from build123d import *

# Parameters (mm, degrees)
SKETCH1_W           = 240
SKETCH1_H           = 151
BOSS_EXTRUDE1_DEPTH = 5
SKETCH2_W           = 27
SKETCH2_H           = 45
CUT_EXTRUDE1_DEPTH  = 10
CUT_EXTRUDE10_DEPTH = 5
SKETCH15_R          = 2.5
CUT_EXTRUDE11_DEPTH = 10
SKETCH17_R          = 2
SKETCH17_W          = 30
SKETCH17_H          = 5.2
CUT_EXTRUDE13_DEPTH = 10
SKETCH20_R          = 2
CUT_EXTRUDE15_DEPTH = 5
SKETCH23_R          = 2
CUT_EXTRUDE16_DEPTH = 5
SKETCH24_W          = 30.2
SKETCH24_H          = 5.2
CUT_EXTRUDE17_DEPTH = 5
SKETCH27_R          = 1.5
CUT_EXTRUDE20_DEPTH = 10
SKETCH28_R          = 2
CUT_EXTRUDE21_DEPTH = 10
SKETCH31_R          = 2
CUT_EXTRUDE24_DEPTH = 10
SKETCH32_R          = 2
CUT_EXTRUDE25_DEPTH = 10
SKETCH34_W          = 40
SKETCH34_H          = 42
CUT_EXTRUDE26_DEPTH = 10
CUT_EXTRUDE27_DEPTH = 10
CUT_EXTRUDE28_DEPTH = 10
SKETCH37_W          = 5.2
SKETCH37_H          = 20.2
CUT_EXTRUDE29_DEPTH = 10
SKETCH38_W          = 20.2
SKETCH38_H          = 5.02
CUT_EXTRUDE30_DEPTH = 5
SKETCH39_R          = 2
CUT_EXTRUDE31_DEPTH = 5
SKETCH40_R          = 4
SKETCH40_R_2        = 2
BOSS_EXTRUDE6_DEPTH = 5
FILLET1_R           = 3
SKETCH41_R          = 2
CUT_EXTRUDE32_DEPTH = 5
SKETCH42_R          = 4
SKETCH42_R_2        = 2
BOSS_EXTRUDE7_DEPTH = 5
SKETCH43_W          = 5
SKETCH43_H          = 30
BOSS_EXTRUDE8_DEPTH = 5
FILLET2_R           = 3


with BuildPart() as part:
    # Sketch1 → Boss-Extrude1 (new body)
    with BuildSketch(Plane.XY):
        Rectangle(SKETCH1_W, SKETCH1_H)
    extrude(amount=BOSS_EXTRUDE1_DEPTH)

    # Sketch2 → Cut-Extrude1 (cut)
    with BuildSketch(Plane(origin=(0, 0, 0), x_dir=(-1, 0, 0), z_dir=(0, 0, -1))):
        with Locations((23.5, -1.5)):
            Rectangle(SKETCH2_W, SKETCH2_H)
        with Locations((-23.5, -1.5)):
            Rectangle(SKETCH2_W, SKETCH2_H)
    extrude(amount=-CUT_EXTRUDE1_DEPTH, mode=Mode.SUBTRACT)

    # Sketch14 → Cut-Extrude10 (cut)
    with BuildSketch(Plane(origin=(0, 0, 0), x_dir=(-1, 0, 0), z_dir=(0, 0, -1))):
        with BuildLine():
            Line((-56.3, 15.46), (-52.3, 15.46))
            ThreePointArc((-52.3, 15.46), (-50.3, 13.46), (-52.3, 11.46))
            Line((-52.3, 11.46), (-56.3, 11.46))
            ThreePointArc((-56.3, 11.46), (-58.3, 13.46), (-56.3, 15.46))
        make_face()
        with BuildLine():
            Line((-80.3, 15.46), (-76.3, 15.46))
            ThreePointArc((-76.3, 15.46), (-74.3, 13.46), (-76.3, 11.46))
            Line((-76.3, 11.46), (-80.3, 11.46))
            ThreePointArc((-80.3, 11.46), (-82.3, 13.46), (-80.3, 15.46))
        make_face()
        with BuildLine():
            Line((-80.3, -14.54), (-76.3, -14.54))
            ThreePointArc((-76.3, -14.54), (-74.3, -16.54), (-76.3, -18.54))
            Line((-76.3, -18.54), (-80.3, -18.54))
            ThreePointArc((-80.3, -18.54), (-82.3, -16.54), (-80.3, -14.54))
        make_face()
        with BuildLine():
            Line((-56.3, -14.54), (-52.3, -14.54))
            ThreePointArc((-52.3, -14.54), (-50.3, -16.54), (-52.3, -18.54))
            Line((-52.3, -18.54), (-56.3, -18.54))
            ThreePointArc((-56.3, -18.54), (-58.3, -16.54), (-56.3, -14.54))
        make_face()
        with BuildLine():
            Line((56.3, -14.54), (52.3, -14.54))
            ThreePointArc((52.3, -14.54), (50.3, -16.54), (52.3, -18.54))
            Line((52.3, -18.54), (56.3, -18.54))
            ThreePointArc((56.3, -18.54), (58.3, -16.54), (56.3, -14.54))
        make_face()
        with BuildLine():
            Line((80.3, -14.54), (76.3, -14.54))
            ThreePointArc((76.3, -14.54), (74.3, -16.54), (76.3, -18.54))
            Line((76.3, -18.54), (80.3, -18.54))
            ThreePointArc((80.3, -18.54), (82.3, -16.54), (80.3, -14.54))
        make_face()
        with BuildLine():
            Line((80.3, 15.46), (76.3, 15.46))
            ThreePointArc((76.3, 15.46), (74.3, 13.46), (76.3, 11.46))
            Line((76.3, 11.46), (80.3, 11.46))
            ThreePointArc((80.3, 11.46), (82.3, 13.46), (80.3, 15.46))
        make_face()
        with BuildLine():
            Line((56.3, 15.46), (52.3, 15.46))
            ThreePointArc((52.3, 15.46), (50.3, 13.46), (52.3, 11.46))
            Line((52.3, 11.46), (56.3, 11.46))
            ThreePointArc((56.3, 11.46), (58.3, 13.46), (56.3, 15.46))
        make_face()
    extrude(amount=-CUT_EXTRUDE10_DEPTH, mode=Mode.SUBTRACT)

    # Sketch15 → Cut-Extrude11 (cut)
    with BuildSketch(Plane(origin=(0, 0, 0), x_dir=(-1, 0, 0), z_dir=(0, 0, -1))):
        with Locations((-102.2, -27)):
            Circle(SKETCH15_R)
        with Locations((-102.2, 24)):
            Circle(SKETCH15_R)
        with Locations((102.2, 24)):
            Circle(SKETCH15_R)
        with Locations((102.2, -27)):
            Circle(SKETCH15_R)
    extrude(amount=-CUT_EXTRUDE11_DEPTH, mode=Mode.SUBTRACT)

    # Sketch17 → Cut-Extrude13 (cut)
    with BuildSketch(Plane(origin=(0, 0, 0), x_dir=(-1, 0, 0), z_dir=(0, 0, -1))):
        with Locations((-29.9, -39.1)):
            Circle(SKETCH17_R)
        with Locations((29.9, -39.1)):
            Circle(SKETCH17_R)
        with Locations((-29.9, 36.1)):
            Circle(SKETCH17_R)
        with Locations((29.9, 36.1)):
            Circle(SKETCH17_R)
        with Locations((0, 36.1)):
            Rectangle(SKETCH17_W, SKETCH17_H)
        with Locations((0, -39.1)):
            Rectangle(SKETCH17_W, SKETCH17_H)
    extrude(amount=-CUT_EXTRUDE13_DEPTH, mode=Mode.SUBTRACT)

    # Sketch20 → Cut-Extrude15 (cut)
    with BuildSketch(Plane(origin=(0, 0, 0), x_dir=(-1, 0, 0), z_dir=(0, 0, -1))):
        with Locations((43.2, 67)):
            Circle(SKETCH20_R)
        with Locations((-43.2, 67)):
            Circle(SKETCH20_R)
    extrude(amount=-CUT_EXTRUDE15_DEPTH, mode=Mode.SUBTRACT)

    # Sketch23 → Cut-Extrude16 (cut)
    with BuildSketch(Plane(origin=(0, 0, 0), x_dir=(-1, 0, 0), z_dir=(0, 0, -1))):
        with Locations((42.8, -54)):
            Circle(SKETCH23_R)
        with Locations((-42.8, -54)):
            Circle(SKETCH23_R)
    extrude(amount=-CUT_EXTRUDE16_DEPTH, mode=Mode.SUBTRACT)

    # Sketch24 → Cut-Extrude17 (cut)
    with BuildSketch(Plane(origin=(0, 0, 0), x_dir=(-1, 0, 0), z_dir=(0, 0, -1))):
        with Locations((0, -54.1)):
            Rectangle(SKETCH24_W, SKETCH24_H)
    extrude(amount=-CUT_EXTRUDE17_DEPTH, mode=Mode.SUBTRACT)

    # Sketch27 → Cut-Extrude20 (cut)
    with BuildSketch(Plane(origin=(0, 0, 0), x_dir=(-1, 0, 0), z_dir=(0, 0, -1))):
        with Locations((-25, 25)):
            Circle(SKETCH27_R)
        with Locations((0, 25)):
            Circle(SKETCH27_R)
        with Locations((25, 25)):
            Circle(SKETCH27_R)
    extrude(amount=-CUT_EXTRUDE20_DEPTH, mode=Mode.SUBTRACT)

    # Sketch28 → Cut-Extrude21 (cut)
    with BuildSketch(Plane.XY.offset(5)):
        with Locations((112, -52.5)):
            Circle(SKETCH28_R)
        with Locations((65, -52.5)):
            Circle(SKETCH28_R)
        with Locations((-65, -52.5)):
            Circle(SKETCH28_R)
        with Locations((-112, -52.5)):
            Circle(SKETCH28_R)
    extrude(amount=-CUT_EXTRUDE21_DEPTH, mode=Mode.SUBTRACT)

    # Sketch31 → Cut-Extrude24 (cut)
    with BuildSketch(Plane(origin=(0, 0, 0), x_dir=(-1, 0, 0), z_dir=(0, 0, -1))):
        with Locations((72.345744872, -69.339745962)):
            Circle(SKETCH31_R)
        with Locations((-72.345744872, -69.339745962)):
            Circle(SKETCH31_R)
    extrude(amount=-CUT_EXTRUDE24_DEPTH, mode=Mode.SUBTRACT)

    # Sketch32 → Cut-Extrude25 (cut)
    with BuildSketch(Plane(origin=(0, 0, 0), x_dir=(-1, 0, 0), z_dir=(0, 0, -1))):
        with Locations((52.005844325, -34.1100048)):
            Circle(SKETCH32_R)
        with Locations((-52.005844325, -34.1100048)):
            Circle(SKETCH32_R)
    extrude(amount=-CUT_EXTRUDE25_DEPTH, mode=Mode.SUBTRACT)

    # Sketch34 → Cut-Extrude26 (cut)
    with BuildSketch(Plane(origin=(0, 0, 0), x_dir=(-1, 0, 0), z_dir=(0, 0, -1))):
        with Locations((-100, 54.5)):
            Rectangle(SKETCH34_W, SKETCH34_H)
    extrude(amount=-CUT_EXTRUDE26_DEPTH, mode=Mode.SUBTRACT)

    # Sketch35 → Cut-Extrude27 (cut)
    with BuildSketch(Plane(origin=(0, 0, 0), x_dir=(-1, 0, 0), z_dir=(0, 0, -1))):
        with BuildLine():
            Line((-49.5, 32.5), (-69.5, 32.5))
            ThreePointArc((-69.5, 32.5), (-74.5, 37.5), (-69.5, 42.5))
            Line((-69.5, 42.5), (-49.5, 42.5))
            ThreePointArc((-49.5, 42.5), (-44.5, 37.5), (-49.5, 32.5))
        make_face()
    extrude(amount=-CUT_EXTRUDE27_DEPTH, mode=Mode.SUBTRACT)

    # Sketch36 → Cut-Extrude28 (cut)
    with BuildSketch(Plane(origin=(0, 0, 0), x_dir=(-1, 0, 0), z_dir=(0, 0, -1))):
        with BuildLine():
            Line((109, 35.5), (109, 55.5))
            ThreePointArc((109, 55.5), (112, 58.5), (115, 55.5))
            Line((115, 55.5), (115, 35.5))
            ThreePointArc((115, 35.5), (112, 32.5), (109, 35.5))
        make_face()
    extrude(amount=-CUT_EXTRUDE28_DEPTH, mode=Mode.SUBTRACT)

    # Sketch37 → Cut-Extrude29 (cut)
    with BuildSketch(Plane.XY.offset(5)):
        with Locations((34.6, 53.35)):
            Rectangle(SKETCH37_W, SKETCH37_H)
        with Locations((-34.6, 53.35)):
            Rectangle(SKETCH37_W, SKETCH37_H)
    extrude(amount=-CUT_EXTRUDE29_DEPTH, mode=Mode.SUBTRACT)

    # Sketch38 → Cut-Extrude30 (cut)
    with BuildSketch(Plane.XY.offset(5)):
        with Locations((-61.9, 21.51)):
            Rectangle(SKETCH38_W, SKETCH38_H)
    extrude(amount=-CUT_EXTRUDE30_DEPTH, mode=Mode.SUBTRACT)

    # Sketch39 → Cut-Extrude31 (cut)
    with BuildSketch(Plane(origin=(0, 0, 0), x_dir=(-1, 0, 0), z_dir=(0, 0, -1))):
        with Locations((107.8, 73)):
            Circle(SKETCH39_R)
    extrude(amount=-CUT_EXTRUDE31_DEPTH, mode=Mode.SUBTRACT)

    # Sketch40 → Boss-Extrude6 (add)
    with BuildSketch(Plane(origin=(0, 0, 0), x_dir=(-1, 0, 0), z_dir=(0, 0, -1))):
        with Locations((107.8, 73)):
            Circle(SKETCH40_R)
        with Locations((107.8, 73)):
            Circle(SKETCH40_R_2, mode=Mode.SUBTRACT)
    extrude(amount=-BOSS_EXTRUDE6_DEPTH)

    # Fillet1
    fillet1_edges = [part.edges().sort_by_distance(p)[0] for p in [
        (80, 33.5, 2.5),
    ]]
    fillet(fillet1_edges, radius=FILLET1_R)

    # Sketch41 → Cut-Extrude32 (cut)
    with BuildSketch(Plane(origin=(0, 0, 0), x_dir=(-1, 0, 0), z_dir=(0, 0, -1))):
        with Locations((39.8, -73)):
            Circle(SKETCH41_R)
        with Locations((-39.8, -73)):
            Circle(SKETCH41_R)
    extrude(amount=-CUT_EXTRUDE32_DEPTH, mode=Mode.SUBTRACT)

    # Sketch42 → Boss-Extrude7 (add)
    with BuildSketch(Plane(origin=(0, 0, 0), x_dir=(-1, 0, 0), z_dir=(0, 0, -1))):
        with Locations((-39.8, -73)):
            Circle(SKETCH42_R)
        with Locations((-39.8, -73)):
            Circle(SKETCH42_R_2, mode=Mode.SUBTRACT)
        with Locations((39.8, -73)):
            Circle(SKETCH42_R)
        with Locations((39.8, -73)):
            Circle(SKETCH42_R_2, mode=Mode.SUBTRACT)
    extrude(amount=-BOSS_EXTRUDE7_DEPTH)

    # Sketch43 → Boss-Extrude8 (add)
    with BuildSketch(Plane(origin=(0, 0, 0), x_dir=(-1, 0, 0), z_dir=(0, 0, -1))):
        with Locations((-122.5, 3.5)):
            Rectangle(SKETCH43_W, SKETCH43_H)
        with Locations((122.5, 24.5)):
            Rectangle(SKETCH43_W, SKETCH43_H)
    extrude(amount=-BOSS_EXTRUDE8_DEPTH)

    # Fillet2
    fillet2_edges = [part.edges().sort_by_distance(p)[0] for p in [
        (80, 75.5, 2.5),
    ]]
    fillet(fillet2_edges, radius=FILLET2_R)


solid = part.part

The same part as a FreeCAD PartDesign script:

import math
import FreeCAD as App
import Part
import Sketcher

V = App.Vector


def edges_at(feature, points):
    """Names of the edges that pass closest to the given points."""
    edges = feature.Shape.Edges
    near = lambda p: min(range(len(edges)), key=lambda i: edges[i].distToShape(Part.Vertex(*p))[0])
    return sorted({f"Edge{near(p) + 1}" for p in points})

doc = App.newDocument("Part")
body = doc.addObject("PartDesign::Body", "Body")

# Sketch on XY plane
sketch1 = body.newObject("Sketcher::SketchObject", "Sketch")
sketch1.AttachmentSupport = (doc.getObject("XY_Plane"), [""])
sketch1.MapMode = "FlatFace"
sketch1.addGeometry([
    Part.LineSegment(V(-120, 75.5, 0), V(-120, -75.5, 0)),
    Part.LineSegment(V(-120, -75.5, 0), V(120, -75.5, 0)),
    Part.LineSegment(V(120, -75.5, 0), V(120, 75.5, 0)),
    Part.LineSegment(V(120, 75.5, 0), V(-120, 75.5, 0)),
], False)
sketch1.addConstraint([
    Sketcher.Constraint("Coincident", 0, 2, 1, 1),
    Sketcher.Constraint("Coincident", 1, 2, 2, 1),
    Sketcher.Constraint("Coincident", 2, 2, 3, 1),
    Sketcher.Constraint("Coincident", 3, 2, 0, 1),
    Sketcher.Constraint("Vertical", 0),
    Sketcher.Constraint("Horizontal", 1),
    Sketcher.Constraint("Vertical", 2),
    Sketcher.Constraint("Horizontal", 3),
    Sketcher.Constraint("Symmetric", 0, 2, 2, 2, -1, 1),
    Sketcher.Constraint("DistanceX", 1, 1, 1, 2, 240.0),
    Sketcher.Constraint("DistanceY", 0, 2, 0, 1, 151.0),
])
pad1 = body.newObject("PartDesign::Pad", "Pad")
pad1.Profile = sketch1
pad1.Length = 5

# Sketch on XY plane
sketch2 = body.newObject("Sketcher::SketchObject", "Sketch001")
sketch2.AttachmentSupport = (doc.getObject("XY_Plane"), [""])
sketch2.MapMode = "FlatFace"
sketch2.addGeometry([
    Part.LineSegment(V(-10, 21, 0), V(-10, -24, 0)),  # 0
    Part.LineSegment(V(-10, -24, 0), V(-37, -24, 0)),  # 1
    Part.LineSegment(V(-37, -24, 0), V(-37, 21, 0)),  # 2
    Part.LineSegment(V(-37, 21, 0), V(-10, 21, 0)),  # 3
    Part.LineSegment(V(37, 21, 0), V(37, -24, 0)),  # 4
    Part.LineSegment(V(37, -24, 0), V(10, -24, 0)),  # 5
    Part.LineSegment(V(10, -24, 0), V(10, 21, 0)),  # 6
    Part.LineSegment(V(10, 21, 0), V(37, 21, 0)),  # 7
], False)
sketch2.addConstraint([
    Sketcher.Constraint("Coincident", 0, 2, 1, 1),
    Sketcher.Constraint("Coincident", 1, 2, 2, 1),
    Sketcher.Constraint("Coincident", 2, 2, 3, 1),
    Sketcher.Constraint("Coincident", 3, 2, 0, 1),
    Sketcher.Constraint("Coincident", 4, 2, 5, 1),
    Sketcher.Constraint("Coincident", 5, 2, 6, 1),
    Sketcher.Constraint("Coincident", 6, 2, 7, 1),
    Sketcher.Constraint("Coincident", 7, 2, 4, 1),
    Sketcher.Constraint("Vertical", 0),
    Sketcher.Constraint("Horizontal", 1),
    Sketcher.Constraint("Vertical", 2),
    Sketcher.Constraint("Horizontal", 3),
    Sketcher.Constraint("Vertical", 4),
    Sketcher.Constraint("Horizontal", 5),
    Sketcher.Constraint("Vertical", 6),
    Sketcher.Constraint("Horizontal", 7),
    Sketcher.Constraint("Symmetric", 1, 2, 4, 2, -2),
    Sketcher.Constraint("Symmetric", 3, 2, 6, 2, -2),
    Sketcher.Constraint("DistanceX", 1, 2, 1, 1, 27.0),
    Sketcher.Constraint("DistanceY", 0, 2, 0, 1, 45.0),
    Sketcher.Constraint("DistanceX", 0, 2, -1, 1, 10.0),
    Sketcher.Constraint("DistanceY", 0, 2, -1, 1, 24.0),
])
pocket1 = body.newObject("PartDesign::Pocket", "Pocket")
pocket1.Profile = sketch2
pocket1.Length = 10
pocket1.Reversed = True

# Sketch on XY plane
sketch3 = body.newObject("Sketcher::SketchObject", "Sketch002")
sketch3.AttachmentSupport = (doc.getObject("XY_Plane"), [""])
sketch3.MapMode = "FlatFace"
sketch3.addGeometry([
    Part.LineSegment(V(52.3, 15.46, 0), V(56.3, 15.46, 0)),  # 0
    Part.ArcOfCircle(Part.Circle(V(56.3, 13.46, 0), V(0, 0, 1), 2), math.radians(-90), math.radians(90)),  # 1
    Part.LineSegment(V(56.3, 11.46, 0), V(52.3, 11.46, 0)),  # 2
    Part.ArcOfCircle(Part.Circle(V(52.3, 13.46, 0), V(0, 0, 1), 2), math.radians(90), math.radians(270)),  # 3
    Part.LineSegment(V(76.3, 15.46, 0), V(80.3, 15.46, 0)),  # 4
    Part.ArcOfCircle(Part.Circle(V(80.3, 13.46, 0), V(0, 0, 1), 2), math.radians(-90), math.radians(90)),  # 5
    Part.LineSegment(V(80.3, 11.46, 0), V(76.3, 11.46, 0)),  # 6
    Part.ArcOfCircle(Part.Circle(V(76.3, 13.46, 0), V(0, 0, 1), 2), math.radians(90), math.radians(270)),  # 7
    Part.LineSegment(V(76.3, -14.54, 0), V(80.3, -14.54, 0)),  # 8
    Part.ArcOfCircle(Part.Circle(V(80.3, -16.54, 0), V(0, 0, 1), 2), math.radians(-90), math.radians(90)),  # 9
    Part.LineSegment(V(80.3, -18.54, 0), V(76.3, -18.54, 0)),  # 10
    Part.ArcOfCircle(Part.Circle(V(76.3, -16.54, 0), V(0, 0, 1), 2), math.radians(90), math.radians(270)),  # 11
    Part.LineSegment(V(52.3, -14.54, 0), V(56.3, -14.54, 0)),  # 12
    Part.ArcOfCircle(Part.Circle(V(56.3, -16.54, 0), V(0, 0, 1), 2), math.radians(-90), math.radians(90)),  # 13
    Part.LineSegment(V(56.3, -18.54, 0), V(52.3, -18.54, 0)),  # 14
    Part.ArcOfCircle(Part.Circle(V(52.3, -16.54, 0), V(0, 0, 1), 2), math.radians(90), math.radians(270)),  # 15
    Part.LineSegment(V(-56.3, -14.54, 0), V(-52.3, -14.54, 0)),  # 16
    Part.ArcOfCircle(Part.Circle(V(-52.3, -16.54, 0), V(0, 0, 1), 2), math.radians(-90), math.radians(90)),  # 17
    Part.LineSegment(V(-52.3, -18.54, 0), V(-56.3, -18.54, 0)),  # 18
    Part.ArcOfCircle(Part.Circle(V(-56.3, -16.54, 0), V(0, 0, 1), 2), math.radians(90), math.radians(270)),  # 19
    Part.LineSegment(V(-80.3, -14.54, 0), V(-76.3, -14.54, 0)),  # 20
    Part.ArcOfCircle(Part.Circle(V(-76.3, -16.54, 0), V(0, 0, 1), 2), math.radians(-90), math.radians(90)),  # 21
    Part.LineSegment(V(-76.3, -18.54, 0), V(-80.3, -18.54, 0)),  # 22
    Part.ArcOfCircle(Part.Circle(V(-80.3, -16.54, 0), V(0, 0, 1), 2), math.radians(90), math.radians(270)),  # 23
    Part.LineSegment(V(-80.3, 15.46, 0), V(-76.3, 15.46, 0)),  # 24
    Part.ArcOfCircle(Part.Circle(V(-76.3, 13.46, 0), V(0, 0, 1), 2), math.radians(-90), math.radians(90)),  # 25
    Part.LineSegment(V(-76.3, 11.46, 0), V(-80.3, 11.46, 0)),  # 26
    Part.ArcOfCircle(Part.Circle(V(-80.3, 13.46, 0), V(0, 0, 1), 2), math.radians(90), math.radians(270)),  # 27
    Part.LineSegment(V(-56.3, 15.46, 0), V(-52.3, 15.46, 0)),  # 28
    Part.ArcOfCircle(Part.Circle(V(-52.3, 13.46, 0), V(0, 0, 1), 2), math.radians(-90), math.radians(90)),  # 29
    Part.LineSegment(V(-52.3, 11.46, 0), V(-56.3, 11.46, 0)),  # 30
    Part.ArcOfCircle(Part.Circle(V(-56.3, 13.46, 0), V(0, 0, 1), 2), math.radians(90), math.radians(270)),  # 31
], False)
sketch3.addConstraint([
    Sketcher.Constraint("Tangent", 0, 2, 1, 2),
    Sketcher.Constraint("Tangent", 1, 1, 2, 1),
    Sketcher.Constraint("Tangent", 2, 2, 3, 2),
    Sketcher.Constraint("Tangent", 3, 1, 0, 1),
    Sketcher.Constraint("Tangent", 4, 2, 5, 2),
    Sketcher.Constraint("Tangent", 5, 1, 6, 1),
    Sketcher.Constraint("Tangent", 6, 2, 7, 2),
    Sketcher.Constraint("Tangent", 7, 1, 4, 1),
    Sketcher.Constraint("Tangent", 8, 2, 9, 2),
    Sketcher.Constraint("Tangent", 9, 1, 10, 1),
    Sketcher.Constraint("Tangent", 10, 2, 11, 2),
    Sketcher.Constraint("Tangent", 11, 1, 8, 1),
    Sketcher.Constraint("Tangent", 12, 2, 13, 2),
    Sketcher.Constraint("Tangent", 13, 1, 14, 1),
    Sketcher.Constraint("Tangent", 14, 2, 15, 2),
    Sketcher.Constraint("Tangent", 15, 1, 12, 1),
    Sketcher.Constraint("Tangent", 16, 2, 17, 2),
    Sketcher.Constraint("Tangent", 17, 1, 18, 1),
    Sketcher.Constraint("Tangent", 18, 2, 19, 2),
    Sketcher.Constraint("Tangent", 19, 1, 16, 1),
    Sketcher.Constraint("Tangent", 20, 2, 21, 2),
    Sketcher.Constraint("Tangent", 21, 1, 22, 1),
    Sketcher.Constraint("Tangent", 22, 2, 23, 2),
    Sketcher.Constraint("Tangent", 23, 1, 20, 1),
    Sketcher.Constraint("Tangent", 24, 2, 25, 2),
    Sketcher.Constraint("Tangent", 25, 1, 26, 1),
    Sketcher.Constraint("Tangent", 26, 2, 27, 2),
    Sketcher.Constraint("Tangent", 27, 1, 24, 1),
    Sketcher.Constraint("Tangent", 28, 2, 29, 2),
    Sketcher.Constraint("Tangent", 29, 1, 30, 1),
    Sketcher.Constraint("Tangent", 30, 2, 31, 2),
    Sketcher.Constraint("Tangent", 31, 1, 28, 1),
    Sketcher.Constraint("Horizontal", 0),
    Sketcher.Constraint("Horizontal", 2),
    Sketcher.Constraint("Horizontal", 4),
    Sketcher.Constraint("Horizontal", 6),
    Sketcher.Constraint("Horizontal", 8),
    Sketcher.Constraint("Horizontal", 10),
    Sketcher.Constraint("Horizontal", 12),
    Sketcher.Constraint("Horizontal", 14),
    Sketcher.Constraint("Horizontal", 16),
    Sketcher.Constraint("Horizontal", 18),
    Sketcher.Constraint("Horizontal", 20),
    Sketcher.Constraint("Horizontal", 22),
    Sketcher.Constraint("Horizontal", 24),
    Sketcher.Constraint("Horizontal", 26),
    Sketcher.Constraint("Horizontal", 28),
    Sketcher.Constraint("Horizontal", 30),
    Sketcher.Constraint("Equal", 3, 5),
    Sketcher.Constraint("Equal", 7, 9),
    Sketcher.Constraint("Equal", 11, 13),
    Sketcher.Constraint("Equal", 15, 17),
    Sketcher.Constraint("Equal", 19, 21),
    Sketcher.Constraint("Equal", 23, 25),
    Sketcher.Constraint("Equal", 27, 29),
    Sketcher.Constraint("Symmetric", 15, 3, 17, 3, -2),
    Sketcher.Constraint("Symmetric", 11, 3, 21, 3, -2),
    Sketcher.Constraint("Symmetric", 7, 3, 25, 3, -2),
    Sketcher.Constraint("Symmetric", 3, 3, 29, 3, -2),
    Sketcher.Constraint("Horizontal", 3, 3, 5, 3),
    Sketcher.Constraint("Horizontal", 11, 3, 13, 3),
    Sketcher.Constraint("Vertical", 5, 3, 9, 3),
    Sketcher.Constraint("Vertical", 7, 3, 11, 3),
    Sketcher.Constraint("Vertical", 1, 3, 13, 3),
    Sketcher.Constraint("Vertical", 3, 3, 15, 3),
    Sketcher.Constraint("Vertical", 23, 3, 27, 3),
    Sketcher.Constraint("Vertical", 19, 3, 31, 3),
    Sketcher.Constraint("Equal", 2, 4),
    Sketcher.Constraint("Equal", 14, 16),
    Sketcher.Constraint("Equal", 18, 20),
    Sketcher.Constraint("Radius", 1, 2.0),
    Sketcher.Constraint("DistanceX", 0, 1, 0, 2, 4.0),
    Sketcher.Constraint("DistanceX", 1, 3, 5, 3, 24.0),
    Sketcher.Constraint("DistanceY", 9, 3, 5, 3, 30.0),
    Sketcher.Constraint("DistanceX", -1, 1, 1, 3, 56.3),
    Sketcher.Constraint("DistanceY", -1, 1, 1, 3, 13.46),
])
pocket2 = body.newObject("PartDesign::Pocket", "Pocket001")
pocket2.Profile = sketch3
pocket2.Length = 5
pocket2.Reversed = True

# Sketch on XY plane
sketch4 = body.newObject("Sketcher::SketchObject", "Sketch003")
sketch4.AttachmentSupport = (doc.getObject("XY_Plane"), [""])
sketch4.MapMode = "FlatFace"
sketch4.addGeometry([
    Part.Circle(V(102.2, -27, 0), V(0, 0, 1), 2.5),
    Part.Circle(V(102.2, 24, 0), V(0, 0, 1), 2.5),
    Part.Circle(V(-102.2, 24, 0), V(0, 0, 1), 2.5),
    Part.Circle(V(-102.2, -27, 0), V(0, 0, 1), 2.5),
], False)
sketch4.addConstraint([
    Sketcher.Constraint("Equal", 0, 1),
    Sketcher.Constraint("Equal", 1, 2),
    Sketcher.Constraint("Equal", 2, 3),
    Sketcher.Constraint("Symmetric", 1, 3, 2, 3, -2),
    Sketcher.Constraint("Symmetric", 0, 3, 3, 3, -2),
    Sketcher.Constraint("Vertical", 0, 3, 1, 3),
    Sketcher.Constraint("Diameter", 0, 5.0),
    Sketcher.Constraint("DistanceY", 0, 3, -1, 1, 27.0),
    Sketcher.Constraint("DistanceY", -1, 1, 1, 3, 24.0),
    Sketcher.Constraint("DistanceX", -1, 1, 0, 3, 102.2),
])
pocket3 = body.newObject("PartDesign::Pocket", "Pocket002")
pocket3.Profile = sketch4
pocket3.Length = 10
pocket3.Reversed = True

# Sketch on XY plane
sketch5 = body.newObject("Sketcher::SketchObject", "Sketch004")
sketch5.AttachmentSupport = (doc.getObject("XY_Plane"), [""])
sketch5.MapMode = "FlatFace"
sketch5.addGeometry([
    Part.Circle(V(29.9, -39.1, 0), V(0, 0, 1), 2),  # 0
    Part.Circle(V(-29.9, -39.1, 0), V(0, 0, 1), 2),  # 1
    Part.Circle(V(29.9, 36.1, 0), V(0, 0, 1), 2),  # 2
    Part.Circle(V(-29.9, 36.1, 0), V(0, 0, 1), 2),  # 3
    Part.LineSegment(V(15, 38.7, 0), V(15, 33.5, 0)),  # 4
    Part.LineSegment(V(15, 33.5, 0), V(-15, 33.5, 0)),  # 5
    Part.LineSegment(V(-15, 33.5, 0), V(-15, 38.7, 0)),  # 6
    Part.LineSegment(V(-15, 38.7, 0), V(15, 38.7, 0)),  # 7
    Part.LineSegment(V(15, -36.5, 0), V(15, -41.7, 0)),  # 8
    Part.LineSegment(V(15, -41.7, 0), V(-15, -41.7, 0)),  # 9
    Part.LineSegment(V(-15, -41.7, 0), V(-15, -36.5, 0)),  # 10
    Part.LineSegment(V(-15, -36.5, 0), V(15, -36.5, 0)),  # 11
], False)
sketch5.addConstraint([
    Sketcher.Constraint("Coincident", 4, 2, 5, 1),
    Sketcher.Constraint("Coincident", 5, 2, 6, 1),
    Sketcher.Constraint("Coincident", 6, 2, 7, 1),
    Sketcher.Constraint("Coincident", 7, 2, 4, 1),
    Sketcher.Constraint("Coincident", 8, 2, 9, 1),
    Sketcher.Constraint("Coincident", 9, 2, 10, 1),
    Sketcher.Constraint("Coincident", 10, 2, 11, 1),
    Sketcher.Constraint("Coincident", 11, 2, 8, 1),
    Sketcher.Constraint("Vertical", 4),
    Sketcher.Constraint("Horizontal", 5),
    Sketcher.Constraint("Vertical", 6),
    Sketcher.Constraint("Horizontal", 7),
    Sketcher.Constraint("Vertical", 8),
    Sketcher.Constraint("Horizontal", 9),
    Sketcher.Constraint("Vertical", 10),
    Sketcher.Constraint("Horizontal", 11),
    Sketcher.Constraint("Equal", 0, 1),
    Sketcher.Constraint("Equal", 1, 2),
    Sketcher.Constraint("Equal", 2, 3),
    Sketcher.Constraint("Symmetric", 0, 3, 1, 3, -2),
    Sketcher.Constraint("Symmetric", 2, 3, 3, 3, -2),
    Sketcher.Constraint("Vertical", 0, 3, 2, 3),
    Sketcher.Constraint("Vertical", 7, 2, 8, 2),
    Sketcher.Constraint("Vertical", 6, 2, 9, 2),
    Sketcher.Constraint("Equal", 6, 8),
    Sketcher.Constraint("Diameter", 0, 4.0),
    Sketcher.Constraint("DistanceX", 5, 2, 5, 1, 30.0),
    Sketcher.Constraint("DistanceY", 4, 2, 4, 1, 5.2),
    Sketcher.Constraint("DistanceX", -1, 1, 4, 2, 15.0),
    Sketcher.Constraint("DistanceY", 10, 2, 5, 2, 70.0),
    Sketcher.Constraint("DistanceX", -1, 1, 0, 3, 29.9),
    Sketcher.Constraint("DistanceY", 0, 3, -1, 1, 39.1),
    Sketcher.Constraint("DistanceY", -1, 1, 2, 3, 36.1),
    Sketcher.Constraint("DistanceY", -1, 1, 4, 2, 33.5),
])
pocket4 = body.newObject("PartDesign::Pocket", "Pocket003")
pocket4.Profile = sketch5
pocket4.Length = 10
pocket4.Reversed = True

# Sketch on XY plane
sketch6 = body.newObject("Sketcher::SketchObject", "Sketch005")
sketch6.AttachmentSupport = (doc.getObject("XY_Plane"), [""])
sketch6.MapMode = "FlatFace"
sketch6.addGeometry([
    Part.Circle(V(-43.2, 67, 0), V(0, 0, 1), 2),
    Part.Circle(V(43.2, 67, 0), V(0, 0, 1), 2),
], False)
sketch6.addConstraint([
    Sketcher.Constraint("Equal", 0, 1),
    Sketcher.Constraint("Symmetric", 0, 3, 1, 3, -2),
    Sketcher.Constraint("Diameter", 0, 4.0),
    Sketcher.Constraint("DistanceY", -1, 1, 0, 3, 67.0),
    Sketcher.Constraint("DistanceX", 0, 3, -1, 1, 43.2),
])
pocket5 = body.newObject("PartDesign::Pocket", "Pocket004")
pocket5.Profile = sketch6
pocket5.Length = 5
pocket5.Reversed = True

# Sketch on XY plane
sketch7 = body.newObject("Sketcher::SketchObject", "Sketch006")
sketch7.AttachmentSupport = (doc.getObject("XY_Plane"), [""])
sketch7.MapMode = "FlatFace"
sketch7.addGeometry([
    Part.Circle(V(-42.8, -54, 0), V(0, 0, 1), 2),
    Part.Circle(V(42.8, -54, 0), V(0, 0, 1), 2),
], False)
sketch7.addConstraint([
    Sketcher.Constraint("Equal", 0, 1),
    Sketcher.Constraint("Symmetric", 0, 3, 1, 3, -2),
    Sketcher.Constraint("Diameter", 0, 4.0),
    Sketcher.Constraint("DistanceY", 0, 3, -1, 1, 54.0),
    Sketcher.Constraint("DistanceX", 0, 3, -1, 1, 42.8),
])
pocket6 = body.newObject("PartDesign::Pocket", "Pocket005")
pocket6.Profile = sketch7
pocket6.Length = 5
pocket6.Reversed = True

# Sketch on XY plane
sketch8 = body.newObject("Sketcher::SketchObject", "Sketch007")
sketch8.AttachmentSupport = (doc.getObject("XY_Plane"), [""])
sketch8.MapMode = "FlatFace"
sketch8.addGeometry([
    Part.LineSegment(V(15.1, -51.5, 0), V(15.1, -56.7, 0)),
    Part.LineSegment(V(15.1, -56.7, 0), V(-15.1, -56.7, 0)),
    Part.LineSegment(V(-15.1, -56.7, 0), V(-15.1, -51.5, 0)),
    Part.LineSegment(V(-15.1, -51.5, 0), V(15.1, -51.5, 0)),
], False)
sketch8.addConstraint([
    Sketcher.Constraint("Coincident", 0, 2, 1, 1),
    Sketcher.Constraint("Coincident", 1, 2, 2, 1),
    Sketcher.Constraint("Coincident", 2, 2, 3, 1),
    Sketcher.Constraint("Coincident", 3, 2, 0, 1),
    Sketcher.Constraint("Vertical", 0),
    Sketcher.Constraint("Horizontal", 1),
    Sketcher.Constraint("Vertical", 2),
    Sketcher.Constraint("Horizontal", 3),
    Sketcher.Constraint("DistanceX", 1, 2, 1, 1, 30.2),
    Sketcher.Constraint("DistanceY", 0, 2, 0, 1, 5.2),
    Sketcher.Constraint("DistanceX", -1, 1, 0, 2, 15.1),
    Sketcher.Constraint("DistanceY", 0, 2, -1, 1, 56.7),
])
pocket7 = body.newObject("PartDesign::Pocket", "Pocket006")
pocket7.Profile = sketch8
pocket7.Length = 5
pocket7.Reversed = True

# Sketch on XY plane
sketch9 = body.newObject("Sketcher::SketchObject", "Sketch008")
sketch9.AttachmentSupport = (doc.getObject("XY_Plane"), [""])
sketch9.MapMode = "FlatFace"
sketch9.addGeometry([
    Part.Circle(V(25, 25, 0), V(0, 0, 1), 1.5),
    Part.Circle(V(0, 25, 0), V(0, 0, 1), 1.5),
    Part.Circle(V(-25, 25, 0), V(0, 0, 1), 1.5),
], False)
sketch9.addConstraint([
    Sketcher.Constraint("Equal", 0, 1),
    Sketcher.Constraint("Equal", 1, 2),
    Sketcher.Constraint("Symmetric", 0, 3, 2, 3, -2),
    Sketcher.Constraint("PointOnObject", 1, 3, -2),
    Sketcher.Constraint("Horizontal", 0, 3, 1, 3),
    Sketcher.Constraint("Diameter", 0, 3.0),
    Sketcher.Constraint("DistanceX", -1, 1, 0, 3, 25.0),
    Sketcher.Constraint("DistanceY", -1, 1, 0, 3, 25.0),
])
pocket8 = body.newObject("PartDesign::Pocket", "Pocket007")
pocket8.Profile = sketch9
pocket8.Length = 10
pocket8.Reversed = True

# Sketch on XY plane
sketch10 = body.newObject("Sketcher::SketchObject", "Sketch009")
sketch10.AttachmentSupport = (doc.getObject("XY_Plane"), [""])
sketch10.MapMode = "FlatFace"
sketch10.AttachmentOffset = App.Placement(V(0, 0, 5), App.Rotation())
sketch10.addGeometry([
    Part.Circle(V(112, -52.5, 0), V(0, 0, 1), 2),
    Part.Circle(V(65, -52.5, 0), V(0, 0, 1), 2),
    Part.Circle(V(-65, -52.5, 0), V(0, 0, 1), 2),
    Part.Circle(V(-112, -52.5, 0), V(0, 0, 1), 2),
], False)
sketch10.addConstraint([
    Sketcher.Constraint("Equal", 0, 1),
    Sketcher.Constraint("Equal", 1, 2),
    Sketcher.Constraint("Equal", 2, 3),
    Sketcher.Constraint("Symmetric", 1, 3, 2, 3, -2),
    Sketcher.Constraint("Symmetric", 0, 3, 3, 3, -2),
    Sketcher.Constraint("Horizontal", 0, 3, 1, 3),
    Sketcher.Constraint("Diameter", 0, 4.0),
    Sketcher.Constraint("DistanceX", -1, 1, 0, 3, 112.0),
    Sketcher.Constraint("DistanceX", -1, 1, 1, 3, 65.0),
    Sketcher.Constraint("DistanceY", 0, 3, -1, 1, 52.5),
])
pocket9 = body.newObject("PartDesign::Pocket", "Pocket008")
pocket9.Profile = sketch10
pocket9.Length = 10

# Sketch on XY plane
sketch11 = body.newObject("Sketcher::SketchObject", "Sketch010")
sketch11.AttachmentSupport = (doc.getObject("XY_Plane"), [""])
sketch11.MapMode = "FlatFace"
sketch11.addGeometry([
    Part.Circle(V(-72.345745, -69.339746, 0), V(0, 0, 1), 2),
    Part.Circle(V(72.345745, -69.339746, 0), V(0, 0, 1), 2),
], False)
sketch11.addConstraint([
    Sketcher.Constraint("Equal", 0, 1),
    Sketcher.Constraint("Symmetric", 0, 3, 1, 3, -2),
    Sketcher.Constraint("Diameter", 0, 4.0),
    Sketcher.Constraint("DistanceX", 0, 3, 1, 3, 144.69149),
    Sketcher.Constraint("DistanceY", 0, 3, -1, 1, 69.339746),
])
pocket10 = body.newObject("PartDesign::Pocket", "Pocket009")
pocket10.Profile = sketch11
pocket10.Length = 10
pocket10.Reversed = True

# Sketch on XY plane
sketch12 = body.newObject("Sketcher::SketchObject", "Sketch011")
sketch12.AttachmentSupport = (doc.getObject("XY_Plane"), [""])
sketch12.MapMode = "FlatFace"
sketch12.addGeometry([
    Part.Circle(V(-52.005844, -34.110005, 0), V(0, 0, 1), 2),
    Part.Circle(V(52.005844, -34.110005, 0), V(0, 0, 1), 2),
], False)
sketch12.addConstraint([
    Sketcher.Constraint("Equal", 0, 1),
    Sketcher.Constraint("Symmetric", 0, 3, 1, 3, -2),
    Sketcher.Constraint("Diameter", 0, 4.0),
    Sketcher.Constraint("DistanceX", 0, 3, 1, 3, 104.011689),
    Sketcher.Constraint("DistanceY", 0, 3, -1, 1, 34.110005),
])
pocket11 = body.newObject("PartDesign::Pocket", "Pocket010")
pocket11.Profile = sketch12
pocket11.Length = 10
pocket11.Reversed = True

# Sketch on XY plane
sketch13 = body.newObject("Sketcher::SketchObject", "Sketch012")
sketch13.AttachmentSupport = (doc.getObject("XY_Plane"), [""])
sketch13.MapMode = "FlatFace"
sketch13.addGeometry([
    Part.LineSegment(V(120, 75.5, 0), V(120, 33.5, 0)),
    Part.LineSegment(V(120, 33.5, 0), V(80, 33.5, 0)),
    Part.LineSegment(V(80, 33.5, 0), V(80, 75.5, 0)),
    Part.LineSegment(V(80, 75.5, 0), V(120, 75.5, 0)),
], False)
sketch13.addConstraint([
    Sketcher.Constraint("Coincident", 0, 2, 1, 1),
    Sketcher.Constraint("Coincident", 1, 2, 2, 1),
    Sketcher.Constraint("Coincident", 2, 2, 3, 1),
    Sketcher.Constraint("Coincident", 3, 2, 0, 1),
    Sketcher.Constraint("Vertical", 0),
    Sketcher.Constraint("Horizontal", 1),
    Sketcher.Constraint("Vertical", 2),
    Sketcher.Constraint("Horizontal", 3),
    Sketcher.Constraint("DistanceX", 1, 2, 1, 1, 40.0),
    Sketcher.Constraint("DistanceY", 0, 2, 0, 1, 42.0),
    Sketcher.Constraint("DistanceX", -1, 1, 0, 2, 120.0),
    Sketcher.Constraint("DistanceY", -1, 1, 0, 2, 33.5),
])
pocket12 = body.newObject("PartDesign::Pocket", "Pocket011")
pocket12.Profile = sketch13
pocket12.Length = 10
pocket12.Reversed = True

# Sketch on XY plane
sketch14 = body.newObject("Sketcher::SketchObject", "Sketch013")
sketch14.AttachmentSupport = (doc.getObject("XY_Plane"), [""])
sketch14.MapMode = "FlatFace"
sketch14.addGeometry([
    Part.LineSegment(V(69.5, 32.5, 0), V(49.5, 32.5, 0)),
    Part.ArcOfCircle(Part.Circle(V(49.5, 37.5, 0), V(0, 0, 1), 5), math.radians(90), math.radians(270)),
    Part.LineSegment(V(49.5, 42.5, 0), V(69.5, 42.5, 0)),
    Part.ArcOfCircle(Part.Circle(V(69.5, 37.5, 0), V(0, 0, 1), 5), math.radians(-90), math.radians(90)),
], False)
sketch14.addConstraint([
    Sketcher.Constraint("Tangent", 0, 2, 1, 2),
    Sketcher.Constraint("Tangent", 1, 1, 2, 1),
    Sketcher.Constraint("Tangent", 2, 2, 3, 2),
    Sketcher.Constraint("Tangent", 3, 1, 0, 1),
    Sketcher.Constraint("Horizontal", 0),
    Sketcher.Constraint("Horizontal", 2),
    Sketcher.Constraint("Radius", 1, 5.0),
    Sketcher.Constraint("DistanceX", 0, 2, 0, 1, 20.0),
    Sketcher.Constraint("DistanceX", -1, 1, 1, 3, 49.5),
    Sketcher.Constraint("DistanceY", -1, 1, 1, 3, 37.5),
])
pocket13 = body.newObject("PartDesign::Pocket", "Pocket012")
pocket13.Profile = sketch14
pocket13.Length = 10
pocket13.Reversed = True

# Sketch on XY plane
sketch15 = body.newObject("Sketcher::SketchObject", "Sketch014")
sketch15.AttachmentSupport = (doc.getObject("XY_Plane"), [""])
sketch15.MapMode = "FlatFace"
sketch15.addGeometry([
    Part.LineSegment(V(-109, 55.5, 0), V(-109, 35.5, 0)),
    Part.ArcOfCircle(Part.Circle(V(-112, 35.5, 0), V(0, 0, 1), 3), math.radians(180), math.radians(360)),
    Part.LineSegment(V(-115, 35.5, 0), V(-115, 55.5, 0)),
    Part.ArcOfCircle(Part.Circle(V(-112, 55.5, 0), V(0, 0, 1), 3), math.radians(0), math.radians(180)),
], False)
sketch15.addConstraint([
    Sketcher.Constraint("Tangent", 0, 2, 1, 2),
    Sketcher.Constraint("Tangent", 1, 1, 2, 1),
    Sketcher.Constraint("Tangent", 2, 2, 3, 2),
    Sketcher.Constraint("Tangent", 3, 1, 0, 1),
    Sketcher.Constraint("Vertical", 0),
    Sketcher.Constraint("Vertical", 2),
    Sketcher.Constraint("Radius", 1, 3.0),
    Sketcher.Constraint("DistanceY", 0, 2, 0, 1, 20.0),
    Sketcher.Constraint("DistanceX", 1, 3, -1, 1, 112.0),
    Sketcher.Constraint("DistanceY", -1, 1, 1, 3, 35.5),
])
pocket14 = body.newObject("PartDesign::Pocket", "Pocket013")
pocket14.Profile = sketch15
pocket14.Length = 10
pocket14.Reversed = True

# Sketch on XY plane
sketch16 = body.newObject("Sketcher::SketchObject", "Sketch015")
sketch16.AttachmentSupport = (doc.getObject("XY_Plane"), [""])
sketch16.MapMode = "FlatFace"
sketch16.AttachmentOffset = App.Placement(V(0, 0, 5), App.Rotation())
sketch16.addGeometry([
    Part.LineSegment(V(32, 63.45, 0), V(32, 43.25, 0)),  # 0
    Part.LineSegment(V(32, 43.25, 0), V(37.2, 43.25, 0)),  # 1
    Part.LineSegment(V(37.2, 43.25, 0), V(37.2, 63.45, 0)),  # 2
    Part.LineSegment(V(37.2, 63.45, 0), V(32, 63.45, 0)),  # 3
    Part.LineSegment(V(-37.2, 63.45, 0), V(-37.2, 43.25, 0)),  # 4
    Part.LineSegment(V(-37.2, 43.25, 0), V(-32, 43.25, 0)),  # 5
    Part.LineSegment(V(-32, 43.25, 0), V(-32, 63.45, 0)),  # 6
    Part.LineSegment(V(-32, 63.45, 0), V(-37.2, 63.45, 0)),  # 7
], False)
sketch16.addConstraint([
    Sketcher.Constraint("Coincident", 0, 2, 1, 1),
    Sketcher.Constraint("Coincident", 1, 2, 2, 1),
    Sketcher.Constraint("Coincident", 2, 2, 3, 1),
    Sketcher.Constraint("Coincident", 3, 2, 0, 1),
    Sketcher.Constraint("Coincident", 4, 2, 5, 1),
    Sketcher.Constraint("Coincident", 5, 2, 6, 1),
    Sketcher.Constraint("Coincident", 6, 2, 7, 1),
    Sketcher.Constraint("Coincident", 7, 2, 4, 1),
    Sketcher.Constraint("Vertical", 0),
    Sketcher.Constraint("Horizontal", 1),
    Sketcher.Constraint("Vertical", 2),
    Sketcher.Constraint("Horizontal", 3),
    Sketcher.Constraint("Vertical", 4),
    Sketcher.Constraint("Horizontal", 5),
    Sketcher.Constraint("Vertical", 6),
    Sketcher.Constraint("Horizontal", 7),
    Sketcher.Constraint("Symmetric", 1, 2, 4, 2, -2),
    Sketcher.Constraint("Symmetric", 3, 2, 6, 2, -2),
    Sketcher.Constraint("DistanceX", 1, 1, 1, 2, 5.2),
    Sketcher.Constraint("DistanceY", 0, 2, 0, 1, 20.2),
    Sketcher.Constraint("DistanceX", -1, 1, 0, 2, 32.0),
    Sketcher.Constraint("DistanceY", -1, 1, 0, 2, 43.25),
])
pocket15 = body.newObject("PartDesign::Pocket", "Pocket014")
pocket15.Profile = sketch16
pocket15.Length = 10

# Sketch on XY plane
sketch17 = body.newObject("Sketcher::SketchObject", "Sketch016")
sketch17.AttachmentSupport = (doc.getObject("XY_Plane"), [""])
sketch17.MapMode = "FlatFace"
sketch17.AttachmentOffset = App.Placement(V(0, 0, 5), App.Rotation())
sketch17.addGeometry([
    Part.LineSegment(V(-72, 24.02, 0), V(-72, 19, 0)),
    Part.LineSegment(V(-72, 19, 0), V(-51.8, 19, 0)),
    Part.LineSegment(V(-51.8, 19, 0), V(-51.8, 24.02, 0)),
    Part.LineSegment(V(-51.8, 24.02, 0), V(-72, 24.02, 0)),
], False)
sketch17.addConstraint([
    Sketcher.Constraint("Coincident", 0, 2, 1, 1),
    Sketcher.Constraint("Coincident", 1, 2, 2, 1),
    Sketcher.Constraint("Coincident", 2, 2, 3, 1),
    Sketcher.Constraint("Coincident", 3, 2, 0, 1),
    Sketcher.Constraint("Vertical", 0),
    Sketcher.Constraint("Horizontal", 1),
    Sketcher.Constraint("Vertical", 2),
    Sketcher.Constraint("Horizontal", 3),
    Sketcher.Constraint("DistanceX", 1, 1, 1, 2, 20.2),
    Sketcher.Constraint("DistanceX", 0, 2, -1, 1, 72.0),
    Sketcher.Constraint("DistanceY", -1, 1, 0, 2, 19.0),
    Sketcher.Constraint("DistanceY", 0, 2, 0, 1, 5.02),
])
pocket16 = body.newObject("PartDesign::Pocket", "Pocket015")
pocket16.Profile = sketch17
pocket16.Length = 5

# Sketch on XY plane
sketch18 = body.newObject("Sketcher::SketchObject", "Sketch017")
sketch18.AttachmentSupport = (doc.getObject("XY_Plane"), [""])
sketch18.MapMode = "FlatFace"
sketch18.addGeometry(Part.Circle(V(-107.8, 73, 0), V(0, 0, 1), 2), False)
sketch18.addConstraint([
    Sketcher.Constraint("Diameter", 0, 4.0),
    Sketcher.Constraint("DistanceY", -1, 1, 0, 3, 73.0),
    Sketcher.Constraint("DistanceX", 0, 3, -1, 1, 107.8),
])
pocket17 = body.newObject("PartDesign::Pocket", "Pocket016")
pocket17.Profile = sketch18
pocket17.Length = 5
pocket17.Reversed = True

# Sketch on XY plane
sketch19 = body.newObject("Sketcher::SketchObject", "Sketch018")
sketch19.AttachmentSupport = (doc.getObject("XY_Plane"), [""])
sketch19.MapMode = "FlatFace"
sketch19.addGeometry([
    Part.Circle(V(-107.8, 73, 0), V(0, 0, 1), 4),
    Part.Circle(V(-107.8, 73, 0), V(0, 0, 1), 2),
], False)
sketch19.addConstraint([
    Sketcher.Constraint("Coincident", 1, 3, 0, 3),
    Sketcher.Constraint("Diameter", 0, 8.0),
    Sketcher.Constraint("Diameter", 1, 4.0),
    Sketcher.Constraint("DistanceY", -1, 1, 0, 3, 73.0),
    Sketcher.Constraint("DistanceX", 0, 3, -1, 1, 107.8),
])
pad2 = body.newObject("PartDesign::Pad", "Pad001")
pad2.Profile = sketch19
pad2.Length = 5
doc.recompute()

fillet = body.newObject("PartDesign::Fillet", "Fillet")
fillet.Base = (pad2, edges_at(pad2, [(80, 33.5, 2.5)]))
fillet.Radius = 3

# Sketch on XY plane
sketch20 = body.newObject("Sketcher::SketchObject", "Sketch019")
sketch20.AttachmentSupport = (doc.getObject("XY_Plane"), [""])
sketch20.MapMode = "FlatFace"
sketch20.addGeometry([
    Part.Circle(V(-39.8, -73, 0), V(0, 0, 1), 2),
    Part.Circle(V(39.8, -73, 0), V(0, 0, 1), 2),
], False)
sketch20.addConstraint([
    Sketcher.Constraint("Equal", 0, 1),
    Sketcher.Constraint("Symmetric", 0, 3, 1, 3, -2),
    Sketcher.Constraint("Diameter", 0, 4.0),
    Sketcher.Constraint("DistanceY", 0, 3, -1, 1, 73.0),
    Sketcher.Constraint("DistanceX", 0, 3, -1, 1, 39.8),
])
pocket18 = body.newObject("PartDesign::Pocket", "Pocket017")
pocket18.Profile = sketch20
pocket18.Length = 5
pocket18.Reversed = True

# Sketch on XY plane
sketch21 = body.newObject("Sketcher::SketchObject", "Sketch020")
sketch21.AttachmentSupport = (doc.getObject("XY_Plane"), [""])
sketch21.MapMode = "FlatFace"
sketch21.addGeometry([
    Part.Circle(V(39.8, -73, 0), V(0, 0, 1), 4),
    Part.Circle(V(39.8, -73, 0), V(0, 0, 1), 2),
    Part.Circle(V(-39.8, -73, 0), V(0, 0, 1), 4),
    Part.Circle(V(-39.8, -73, 0), V(0, 0, 1), 2),
], False)
sketch21.addConstraint([
    Sketcher.Constraint("Coincident", 1, 3, 0, 3),
    Sketcher.Constraint("Coincident", 3, 3, 2, 3),
    Sketcher.Constraint("Equal", 0, 2),
    Sketcher.Constraint("Equal", 1, 3),
    Sketcher.Constraint("Symmetric", 0, 3, 2, 3, -2),
    Sketcher.Constraint("Diameter", 0, 8.0),
    Sketcher.Constraint("Diameter", 1, 4.0),
    Sketcher.Constraint("DistanceY", 0, 3, -1, 1, 73.0),
    Sketcher.Constraint("DistanceX", -1, 1, 0, 3, 39.8),
])
pad3 = body.newObject("PartDesign::Pad", "Pad002")
pad3.Profile = sketch21
pad3.Length = 5

# Sketch on XY plane
sketch22 = body.newObject("Sketcher::SketchObject", "Sketch021")
sketch22.AttachmentSupport = (doc.getObject("XY_Plane"), [""])
sketch22.MapMode = "FlatFace"
sketch22.addGeometry([
    Part.LineSegment(V(125, 18.5, 0), V(125, -11.5, 0)),  # 0
    Part.LineSegment(V(125, -11.5, 0), V(120, -11.5, 0)),  # 1
    Part.LineSegment(V(120, -11.5, 0), V(120, 18.5, 0)),  # 2
    Part.LineSegment(V(120, 18.5, 0), V(125, 18.5, 0)),  # 3
    Part.LineSegment(V(-120, 39.5, 0), V(-120, 9.5, 0)),  # 4
    Part.LineSegment(V(-120, 9.5, 0), V(-125, 9.5, 0)),  # 5
    Part.LineSegment(V(-125, 9.5, 0), V(-125, 39.5, 0)),  # 6
    Part.LineSegment(V(-125, 39.5, 0), V(-120, 39.5, 0)),  # 7
], False)
sketch22.addConstraint([
    Sketcher.Constraint("Coincident", 0, 2, 1, 1),
    Sketcher.Constraint("Coincident", 1, 2, 2, 1),
    Sketcher.Constraint("Coincident", 2, 2, 3, 1),
    Sketcher.Constraint("Coincident", 3, 2, 0, 1),
    Sketcher.Constraint("Coincident", 4, 2, 5, 1),
    Sketcher.Constraint("Coincident", 5, 2, 6, 1),
    Sketcher.Constraint("Coincident", 6, 2, 7, 1),
    Sketcher.Constraint("Coincident", 7, 2, 4, 1),
    Sketcher.Constraint("Vertical", 0),
    Sketcher.Constraint("Horizontal", 1),
    Sketcher.Constraint("Vertical", 2),
    Sketcher.Constraint("Horizontal", 3),
    Sketcher.Constraint("Vertical", 4),
    Sketcher.Constraint("Horizontal", 5),
    Sketcher.Constraint("Vertical", 6),
    Sketcher.Constraint("Horizontal", 7),
    Sketcher.Constraint("Equal", 3, 5),
    Sketcher.Constraint("Equal", 2, 4),
    Sketcher.Constraint("DistanceX", 1, 2, 1, 1, 5.0),
    Sketcher.Constraint("DistanceY", 0, 2, 0, 1, 30.0),
    Sketcher.Constraint("DistanceX", -1, 1, 0, 2, 125.0),
    Sketcher.Constraint("DistanceX", 4, 2, -1, 1, 120.0),
    Sketcher.Constraint("DistanceY", 4, 2, 2, 2, 9.0),
    Sketcher.Constraint("DistanceY", 0, 2, -1, 1, 11.5),
])
pad4 = body.newObject("PartDesign::Pad", "Pad003")
pad4.Profile = sketch22
pad4.Length = 5
doc.recompute()

fillet2 = body.newObject("PartDesign::Fillet", "Fillet001")
fillet2.Base = (pad4, edges_at(pad4, [(80, 75.5, 2.5)]))
fillet2.Radius = 3

doc.recompute()
